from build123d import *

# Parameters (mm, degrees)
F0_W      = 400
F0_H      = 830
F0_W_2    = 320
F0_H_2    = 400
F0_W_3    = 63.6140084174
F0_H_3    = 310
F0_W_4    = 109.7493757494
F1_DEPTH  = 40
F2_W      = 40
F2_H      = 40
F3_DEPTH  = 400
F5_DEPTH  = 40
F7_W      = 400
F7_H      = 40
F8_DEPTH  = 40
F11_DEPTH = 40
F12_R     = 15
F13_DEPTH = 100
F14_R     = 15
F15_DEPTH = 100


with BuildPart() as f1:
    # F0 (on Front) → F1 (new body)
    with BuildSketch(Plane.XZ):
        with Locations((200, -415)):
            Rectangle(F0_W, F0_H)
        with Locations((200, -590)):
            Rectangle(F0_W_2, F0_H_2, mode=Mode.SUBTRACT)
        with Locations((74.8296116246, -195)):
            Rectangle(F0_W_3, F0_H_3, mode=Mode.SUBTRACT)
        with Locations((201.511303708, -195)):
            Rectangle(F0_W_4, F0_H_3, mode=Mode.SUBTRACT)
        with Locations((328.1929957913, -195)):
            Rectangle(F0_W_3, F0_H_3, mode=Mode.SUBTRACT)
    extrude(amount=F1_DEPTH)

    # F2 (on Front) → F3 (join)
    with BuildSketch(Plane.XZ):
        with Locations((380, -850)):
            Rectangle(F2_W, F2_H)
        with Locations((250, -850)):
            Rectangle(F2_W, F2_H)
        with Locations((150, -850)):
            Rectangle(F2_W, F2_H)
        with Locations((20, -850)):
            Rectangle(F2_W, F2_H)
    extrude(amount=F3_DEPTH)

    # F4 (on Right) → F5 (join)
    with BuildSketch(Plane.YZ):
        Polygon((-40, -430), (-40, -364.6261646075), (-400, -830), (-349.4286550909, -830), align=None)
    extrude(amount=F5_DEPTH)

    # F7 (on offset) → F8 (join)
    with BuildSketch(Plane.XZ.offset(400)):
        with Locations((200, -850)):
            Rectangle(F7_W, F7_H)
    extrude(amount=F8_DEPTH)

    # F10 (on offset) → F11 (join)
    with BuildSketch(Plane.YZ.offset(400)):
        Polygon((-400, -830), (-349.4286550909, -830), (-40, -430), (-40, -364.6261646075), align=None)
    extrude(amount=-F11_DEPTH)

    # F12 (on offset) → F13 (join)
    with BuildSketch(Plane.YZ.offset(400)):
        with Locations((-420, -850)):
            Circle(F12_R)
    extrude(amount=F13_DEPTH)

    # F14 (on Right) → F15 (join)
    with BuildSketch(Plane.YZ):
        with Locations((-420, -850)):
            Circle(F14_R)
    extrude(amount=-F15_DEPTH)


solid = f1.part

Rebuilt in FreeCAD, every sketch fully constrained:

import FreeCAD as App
import Part
import Sketcher

V = App.Vector


def add_polygon(sketch, points):
    """Adds a closed chain of lines whose ends are joined by coincident constraints."""
    first, n = sketch.GeometryCount, len(points)
    for a, b in zip(points, points[1:] + points[:1]):
        sketch.addGeometry(Part.LineSegment(App.Vector(*a, 0), App.Vector(*b, 0)), False)
    for i in range(n):
        sketch.addConstraint(Sketcher.Constraint("Coincident", first + i, 2, first + (i + 1) % n, 1))

doc = App.newDocument("Part")
body = doc.addObject("PartDesign::Body", "Body")

sketch1 = doc.addObject("Sketcher::SketchObject", "Sketch")
body.addObject(sketch1)
sketch1.AttachmentSupport = (doc.XZ_Plane, [""])
sketch1.MapMode = "FlatFace"
add_polygon(sketch1, [(0, 0), (0, -830), (400, -830), (400, 0)])
add_polygon(sketch1, [(360, -790), (40, -790), (40, -390), (360, -390)])
add_polygon(sketch1, [(107, -350), (43, -350), (43, -40), (107, -40)])
add_polygon(sketch1, [(256, -350), (147, -350), (147, -40), (256, -40)])
add_polygon(sketch1, [(360, -350), (296, -350), (296, -40), (360, -40)])
sketch1.addConstraint([
    Sketcher.Constraint("Vertical", 0),
    Sketcher.Constraint("Horizontal", 1),
    Sketcher.Constraint("Vertical", 2),
    Sketcher.Constraint("Horizontal", 3),
    Sketcher.Constraint("Horizontal", 4),
    Sketcher.Constraint("Vertical", 5),
    Sketcher.Constraint("Horizontal", 6),
    Sketcher.Constraint("Vertical", 7),
    Sketcher.Constraint("Horizontal", 8),
    Sketcher.Constraint("Vertical", 9),
    Sketcher.Constraint("Horizontal", 10),
    Sketcher.Constraint("Vertical", 11),
    Sketcher.Constraint("Horizontal", 12),
    Sketcher.Constraint("Vertical", 13),
    Sketcher.Constraint("Horizontal", 14),
    Sketcher.Constraint("Vertical", 15),
    Sketcher.Constraint("Horizontal", 16),
    Sketcher.Constraint("Vertical", 17),
    Sketcher.Constraint("Horizontal", 18),
    Sketcher.Constraint("Vertical", 19),
    Sketcher.Constraint("Coincident", 3, 2, -1, 1),
    Sketcher.Constraint("Horizontal", 11, 2, 12, 2),
    Sketcher.Constraint("Horizontal", 10, 2, 13, 2),
    Sketcher.Constraint("Horizontal", 15, 2, 16, 2),
    Sketcher.Constraint("Horizontal", 14, 2, 17, 2),
    Sketcher.Constraint("Vertical", 7, 2, 18, 2),
    Sketcher.Constraint("Equal", 10, 16),
    Sketcher.Constraint("Equal", 3, 5),
    Sketcher.Constraint("DistanceX", 1, 1, 1, 2, 400.0),
    Sketcher.Constraint("DistanceX", 4, 2, 4, 1, 320.0),
    Sketcher.Constraint("DistanceY", 0, 2, 0, 1, 830.0),
    Sketcher.Constraint("DistanceY", 9, 1, 9, 2, 310.0),
    Sketcher.Constraint("DistanceX", -1, 1, 4, 2, 40.0),
    Sketcher.Constraint("DistanceY", 4, 2, -1, 1, 790.0),
    Sketcher.Constraint("DistanceY", 8, 2, -1, 1, 350.0),
    Sketcher.Constraint("DistanceX", 11, 2, 12, 2, 40.0),
    Sketcher.Constraint("DistanceX", 15, 2, 16, 2, 40.0),
    Sketcher.Constraint("DistanceX", 8, 2, 8, 1, 63.614008),
    Sketcher.Constraint("DistanceX", 12, 2, 12, 1, 109.749376),
])
pad1 = doc.addObject("PartDesign::Pad", "Pad")
body.addObject(pad1)
pad1.Profile = sketch1
pad1.Length = 40

sketch2 = doc.addObject("Sketcher::SketchObject", "Sketch001")
body.addObject(sketch2)
sketch2.AttachmentSupport = (doc.XZ_Plane, [""])
sketch2.MapMode = "FlatFace"
add_polygon(sketch2, [(360, -830), (360, -870), (400, -870), (400, -830)])
add_polygon(sketch2, [(230, -830), (230, -870), (270, -870), (270, -830)])
add_polygon(sketch2, [(130, -830), (130, -870), (170, -870), (170, -830)])
add_polygon(sketch2, [(0, -830), (0, -870), (40, -870), (40, -830)])
sketch2.addConstraint([
    Sketcher.Constraint("Vertical", 0),
    Sketcher.Constraint("Horizontal", 1),
    Sketcher.Constraint("Vertical", 2),
    Sketcher.Constraint("Horizontal", 3),
    Sketcher.Constraint("Vertical", 4),
    Sketcher.Constraint("Horizontal", 5),
    Sketcher.Constraint("Vertical", 6),
    Sketcher.Constraint("Horizontal", 7),
    Sketcher.Constraint("Vertical", 8),
    Sketcher.Constraint("Horizontal", 9),
    Sketcher.Constraint("Vertical", 10),
    Sketcher.Constraint("Horizontal", 11),
    Sketcher.Constraint("Vertical", 12),
    Sketcher.Constraint("Horizontal", 13),
    Sketcher.Constraint("Vertical", 14),
    Sketcher.Constraint("Horizontal", 15),
    Sketcher.Constraint("PointOnObject", 12, 2, -2),
    Sketcher.Constraint("Horizontal", 1, 2, 4, 2),
    Sketcher.Constraint("Horizontal", 3, 2, 6, 2),
    Sketcher.Constraint("Horizontal", 5, 2, 8, 2),
    Sketcher.Constraint("Horizontal", 7, 2, 10, 2),
    Sketcher.Constraint("Horizontal", 9, 2, 12, 2),
    Sketcher.Constraint("Horizontal", 11, 2, 14, 2),
    Sketcher.Constraint("Equal", 3, 5),
    Sketcher.Constraint("Equal", 7, 9),
    Sketcher.Constraint("Equal", 11, 13),
    Sketcher.Constraint("Equal", 15, 0),
    Sketcher.Constraint("DistanceX", 1, 1, 1, 2, 40.0),
    Sketcher.Constraint("DistanceX", -1, 1, 0, 2, 360.0),
    Sketcher.Constraint("DistanceY", 0, 2, -1, 1, 870.0),
    Sketcher.Constraint("DistanceX", -1, 1, 4, 2, 230.0),
    Sketcher.Constraint("DistanceX", -1, 1, 8, 2, 130.0),
])
pad2 = doc.addObject("PartDesign::Pad", "Pad001")
body.addObject(pad2)
pad2.Profile = sketch2
pad2.Length = 400

sketch3 = doc.addObject("Sketcher::SketchObject", "Sketch002")
body.addObject(sketch3)
sketch3.AttachmentSupport = (doc.YZ_Plane, [""])
sketch3.MapMode = "FlatFace"
add_polygon(sketch3, [(-40, -430), (-40, -365), (-400, -830), (-349, -830)])
sketch3.addConstraint([
    Sketcher.Constraint("Vertical", 0),
    Sketcher.Constraint("Horizontal", 2),
    Sketcher.Constraint("Parallel", 1, 3),
    Sketcher.Constraint("DistanceX", 0, 2, -1, 1, 40.0),
    Sketcher.Constraint("DistanceX", 1, 2, -1, 1, 400.0),
    Sketcher.Constraint("DistanceY", 1, 2, -1, 1, 830.0),
    Sketcher.Constraint("DistanceY", 3, 2, -1, 1, 430.0),
    Sketcher.Constraint("Distance", 1, 588.364519),
])
pad3 = doc.addObject("PartDesign::Pad", "Pad002")
body.addObject(pad3)
pad3.Profile = sketch3
pad3.Length = 40

sketch4 = doc.addObject("Sketcher::SketchObject", "Sketch003")
body.addObject(sketch4)
sketch4.AttachmentSupport = (doc.XZ_Plane, [""])
sketch4.MapMode = "FlatFace"
sketch4.AttachmentOffset = App.Placement(V(0, 0, 400), App.Rotation())
add_polygon(sketch4, [(0, -830), (0, -870), (400, -870), (400, -830)])
sketch4.addConstraint([
    Sketcher.Constraint("Vertical", 0),
    Sketcher.Constraint("Horizontal", 1),
    Sketcher.Constraint("Vertical", 2),
    Sketcher.Constraint("Horizontal", 3),
    Sketcher.Constraint("PointOnObject", 0, 2, -2),
    Sketcher.Constraint("DistanceX", 1, 1, 1, 2, 400.0),
    Sketcher.Constraint("DistanceY", 0, 2, 0, 1, 40.0),
    Sketcher.Constraint("DistanceY", 0, 2, -1, 1, 870.0),
])
pad4 = doc.addObject("PartDesign::Pad", "Pad003")
body.addObject(pad4)
pad4.Profile = sketch4
pad4.Length = 40

sketch5 = doc.addObject("Sketcher::SketchObject", "Sketch004")
body.addObject(sketch5)
sketch5.AttachmentSupport = (doc.YZ_Plane, [""])
sketch5.MapMode = "FlatFace"
sketch5.AttachmentOffset = App.Placement(V(0, 0, 400), App.Rotation())
add_polygon(sketch5, [(-400, -830), (-349, -830), (-40, -430), (-40, -365)])
sketch5.addConstraint([
    Sketcher.Constraint("Horizontal", 0),
    Sketcher.Constraint("Vertical", 2),
    Sketcher.Constraint("Parallel", 1, 3),
    Sketcher.Constraint("DistanceY", 0, 2, -1, 1, 830.0),
    Sketcher.Constraint("DistanceX", 1, 2, -1, 1, 40.0),
    Sketcher.Constraint("DistanceY", 1, 2, -1, 1, 430.0),
    Sketcher.Constraint("DistanceX", 3, 2, -1, 1, 400.0),
    Sketcher.Constraint("Distance", 1, 505.713449),
])
pad5 = doc.addObject("PartDesign::Pad", "Pad004")
body.addObject(pad5)
pad5.Profile = sketch5
pad5.Length = 40
pad5.Reversed = True

sketch6 = doc.addObject("Sketcher::SketchObject", "Sketch005")
body.addObject(sketch6)
sketch6.AttachmentSupport = (doc.YZ_Plane, [""])
sketch6.MapMode = "FlatFace"
sketch6.AttachmentOffset = App.Placement(V(0, 0, 400), App.Rotation())
sketch6.addGeometry(Part.Circle(V(-420, -850, 0), V(0, 0, 1), 15), False)
sketch6.addConstraint([
    Sketcher.Constraint("Diameter", 0, 30.0),
    Sketcher.Constraint("DistanceX", 0, 3, -1, 1, 420.0),
    Sketcher.Constraint("DistanceY", 0, 3, -1, 1, 850.0),
])
pad6 = doc.addObject("PartDesign::Pad", "Pad005")
body.addObject(pad6)
pad6.Profile = sketch6
pad6.Length = 100

sketch7 = doc.addObject("Sketcher::SketchObject", "Sketch006")
body.addObject(sketch7)
sketch7.AttachmentSupport = (doc.YZ_Plane, [""])
sketch7.MapMode = "FlatFace"
sketch7.addGeometry(Part.Circle(V(-420, -850, 0), V(0, 0, 1), 15), False)
sketch7.addConstraint([
    Sketcher.Constraint("Diameter", 0, 30.0),
    Sketcher.Constraint("DistanceX", 0, 3, -1, 1, 420.0),
    Sketcher.Constraint("DistanceY", 0, 3, -1, 1, 850.0),
])
pad7 = doc.addObject("PartDesign::Pad", "Pad006")
body.addObject(pad7)
pad7.Profile = sketch7
pad7.Length = 100
pad7.Reversed = True

doc.recompute()
